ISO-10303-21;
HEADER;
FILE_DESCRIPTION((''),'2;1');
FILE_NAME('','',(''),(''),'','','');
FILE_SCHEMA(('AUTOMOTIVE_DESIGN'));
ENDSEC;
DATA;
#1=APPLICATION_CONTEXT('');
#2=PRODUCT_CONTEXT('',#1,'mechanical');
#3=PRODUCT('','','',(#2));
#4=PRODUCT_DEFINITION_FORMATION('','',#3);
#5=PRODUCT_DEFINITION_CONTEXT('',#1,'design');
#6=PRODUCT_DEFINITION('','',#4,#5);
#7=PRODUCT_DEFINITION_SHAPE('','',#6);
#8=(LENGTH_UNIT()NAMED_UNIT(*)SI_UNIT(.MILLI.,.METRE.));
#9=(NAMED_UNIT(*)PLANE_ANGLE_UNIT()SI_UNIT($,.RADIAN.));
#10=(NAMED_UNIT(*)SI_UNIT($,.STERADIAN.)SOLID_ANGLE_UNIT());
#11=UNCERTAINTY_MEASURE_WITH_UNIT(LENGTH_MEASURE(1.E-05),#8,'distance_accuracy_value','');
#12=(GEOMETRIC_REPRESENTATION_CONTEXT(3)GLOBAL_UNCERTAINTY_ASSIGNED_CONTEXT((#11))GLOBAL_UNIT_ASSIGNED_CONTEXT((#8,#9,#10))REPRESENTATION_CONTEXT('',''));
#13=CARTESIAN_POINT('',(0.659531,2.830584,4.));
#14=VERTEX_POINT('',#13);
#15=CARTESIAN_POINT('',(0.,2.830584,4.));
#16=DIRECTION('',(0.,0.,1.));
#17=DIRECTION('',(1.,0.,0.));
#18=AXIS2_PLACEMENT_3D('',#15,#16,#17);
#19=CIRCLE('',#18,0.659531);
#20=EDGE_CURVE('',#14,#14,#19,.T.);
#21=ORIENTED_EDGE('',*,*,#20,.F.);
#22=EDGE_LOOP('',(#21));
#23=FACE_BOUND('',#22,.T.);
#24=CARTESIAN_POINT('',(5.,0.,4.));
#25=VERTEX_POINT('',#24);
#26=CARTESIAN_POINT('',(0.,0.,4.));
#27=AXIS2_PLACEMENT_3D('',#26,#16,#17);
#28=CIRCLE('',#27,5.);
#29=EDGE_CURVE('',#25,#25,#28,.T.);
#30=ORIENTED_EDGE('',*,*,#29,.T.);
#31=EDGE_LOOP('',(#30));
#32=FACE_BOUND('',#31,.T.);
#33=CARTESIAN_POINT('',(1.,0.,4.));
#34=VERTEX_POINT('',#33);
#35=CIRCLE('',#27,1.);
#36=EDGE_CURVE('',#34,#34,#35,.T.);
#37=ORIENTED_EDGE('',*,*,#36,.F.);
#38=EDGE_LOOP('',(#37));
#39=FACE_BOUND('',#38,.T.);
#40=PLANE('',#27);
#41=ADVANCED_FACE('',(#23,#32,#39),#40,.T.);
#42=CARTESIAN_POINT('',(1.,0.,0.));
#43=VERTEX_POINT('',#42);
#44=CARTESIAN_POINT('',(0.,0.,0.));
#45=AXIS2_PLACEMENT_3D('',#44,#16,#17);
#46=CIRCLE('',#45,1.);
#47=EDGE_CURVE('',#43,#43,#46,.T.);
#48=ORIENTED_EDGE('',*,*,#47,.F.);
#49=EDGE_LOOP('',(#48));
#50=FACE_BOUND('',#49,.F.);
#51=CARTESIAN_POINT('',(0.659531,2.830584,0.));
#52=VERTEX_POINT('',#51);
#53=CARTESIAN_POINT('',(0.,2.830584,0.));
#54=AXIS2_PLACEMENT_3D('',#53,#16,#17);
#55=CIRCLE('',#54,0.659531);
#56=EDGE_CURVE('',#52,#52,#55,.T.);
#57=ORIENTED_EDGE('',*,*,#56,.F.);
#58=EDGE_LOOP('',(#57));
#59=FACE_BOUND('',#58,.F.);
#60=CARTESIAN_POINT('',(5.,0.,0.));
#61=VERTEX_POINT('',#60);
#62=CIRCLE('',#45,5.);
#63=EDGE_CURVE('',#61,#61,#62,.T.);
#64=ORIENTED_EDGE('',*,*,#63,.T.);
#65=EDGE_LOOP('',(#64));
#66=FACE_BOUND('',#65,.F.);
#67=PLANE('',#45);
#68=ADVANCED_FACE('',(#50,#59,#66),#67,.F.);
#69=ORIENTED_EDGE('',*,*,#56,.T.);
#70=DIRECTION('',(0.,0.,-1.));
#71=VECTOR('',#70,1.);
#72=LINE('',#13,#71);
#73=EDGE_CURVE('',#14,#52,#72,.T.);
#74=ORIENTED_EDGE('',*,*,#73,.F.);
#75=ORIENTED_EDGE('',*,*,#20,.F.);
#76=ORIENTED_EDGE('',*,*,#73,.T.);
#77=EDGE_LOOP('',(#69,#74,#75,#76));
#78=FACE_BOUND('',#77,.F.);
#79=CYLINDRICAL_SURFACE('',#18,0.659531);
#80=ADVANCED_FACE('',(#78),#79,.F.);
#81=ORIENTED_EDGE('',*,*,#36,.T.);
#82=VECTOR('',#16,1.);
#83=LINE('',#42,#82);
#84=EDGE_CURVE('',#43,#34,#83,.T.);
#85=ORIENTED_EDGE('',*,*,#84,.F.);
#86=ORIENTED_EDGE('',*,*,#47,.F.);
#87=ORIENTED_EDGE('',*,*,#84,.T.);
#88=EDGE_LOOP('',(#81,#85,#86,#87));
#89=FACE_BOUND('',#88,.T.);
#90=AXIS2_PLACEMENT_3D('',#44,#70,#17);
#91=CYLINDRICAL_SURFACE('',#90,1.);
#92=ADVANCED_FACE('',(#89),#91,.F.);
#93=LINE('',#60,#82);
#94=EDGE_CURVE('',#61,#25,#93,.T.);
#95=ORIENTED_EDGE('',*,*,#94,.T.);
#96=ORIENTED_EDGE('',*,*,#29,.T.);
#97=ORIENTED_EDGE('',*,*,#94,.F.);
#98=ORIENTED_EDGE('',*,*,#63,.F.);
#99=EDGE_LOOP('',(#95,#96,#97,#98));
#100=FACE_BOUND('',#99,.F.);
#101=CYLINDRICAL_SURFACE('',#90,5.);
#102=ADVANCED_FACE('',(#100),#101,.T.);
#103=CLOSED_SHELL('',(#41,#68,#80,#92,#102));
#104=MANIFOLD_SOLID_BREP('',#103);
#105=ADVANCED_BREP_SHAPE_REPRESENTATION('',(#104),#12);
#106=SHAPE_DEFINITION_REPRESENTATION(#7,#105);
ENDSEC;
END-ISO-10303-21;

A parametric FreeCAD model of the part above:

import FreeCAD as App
import Part
import Sketcher

doc = App.newDocument("Part")
body = doc.addObject("PartDesign::Body", "Body")

sketch1 = body.newObject("Sketcher::SketchObject", "Sketch")
sketch1.AttachmentSupport = (doc.getObject("XY_Plane"), [""])
sketch1.MapMode = "FlatFace"
sketch1.addGeometry(Part.Circle(App.Vector(0, 0, 0), App.Vector(0, 0, 1), 5), False)
sketch1.addGeometry(Part.Circle(App.Vector(0, 0, 0), App.Vector(0, 0, 1), 1), False)
sketch1.addConstraint(Sketcher.Constraint("Coincident", 0, 3, -1, 1))
sketch1.addConstraint(Sketcher.Constraint("Coincident", 1, 3, -1, 1))
sketch1.addConstraint(Sketcher.Constraint("Diameter", 0, 10.0))
sketch1.addConstraint(Sketcher.Constraint("Diameter", 1, 2.0))
pad1 = body.newObject("PartDesign::Pad", "Pad")
pad1.Profile = sketch1
pad1.Length = 4

sketch2 = body.newObject("Sketcher::SketchObject", "Sketch001")
sketch2.AttachmentSupport = (doc.getObject("XY_Plane"), [""])
sketch2.MapMode = "FlatFace"
sketch2.AttachmentOffset = App.Placement(App.Vector(0, 0, 4), App.Rotation())
sketch2.addGeometry(Part.Circle(App.Vector(0, 2.830584, 0), App.Vector(0, 0, 1), 0.659531), False)
sketch2.addConstraint(Sketcher.Constraint("PointOnObject", 0, 3, -2))
sketch2.addConstraint(Sketcher.Constraint("Diameter", 0, 1.319062))
sketch2.addConstraint(Sketcher.Constraint("DistanceY", -1, 1, 0, 3, 2.830584))
pocket1 = body.newObject("PartDesign::Pocket", "Pocket")
pocket1.Profile = sketch2
pocket1.Length = 10.72134

doc.recompute()
